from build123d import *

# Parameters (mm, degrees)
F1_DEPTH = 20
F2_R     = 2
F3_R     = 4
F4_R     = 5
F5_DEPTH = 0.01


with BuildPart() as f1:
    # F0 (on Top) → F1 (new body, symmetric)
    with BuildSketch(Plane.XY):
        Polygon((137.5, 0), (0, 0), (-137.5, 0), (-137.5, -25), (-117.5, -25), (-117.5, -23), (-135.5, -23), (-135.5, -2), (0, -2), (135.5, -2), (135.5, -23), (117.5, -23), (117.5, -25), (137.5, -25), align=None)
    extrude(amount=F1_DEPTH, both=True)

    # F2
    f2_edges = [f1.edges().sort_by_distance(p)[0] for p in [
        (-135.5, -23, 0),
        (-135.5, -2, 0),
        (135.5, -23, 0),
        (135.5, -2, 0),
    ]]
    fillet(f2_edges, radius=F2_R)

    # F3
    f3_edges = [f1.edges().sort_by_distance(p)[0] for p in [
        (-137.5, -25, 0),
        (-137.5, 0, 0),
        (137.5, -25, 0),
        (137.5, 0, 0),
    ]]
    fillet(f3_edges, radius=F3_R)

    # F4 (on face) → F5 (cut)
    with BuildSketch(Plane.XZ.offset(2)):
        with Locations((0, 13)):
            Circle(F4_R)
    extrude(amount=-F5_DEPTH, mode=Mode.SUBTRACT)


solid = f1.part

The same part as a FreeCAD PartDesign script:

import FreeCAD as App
import Part
import Sketcher
from FreeCAD import Vector


def edges_at(feature, points):
    """Names of the edges that pass closest to the given points."""
    edges = feature.Shape.Edges
    near = lambda p: min(range(len(edges)), key=lambda i: edges[i].distToShape(Part.Vertex(*p))[0])
    return sorted({f"Edge{near(p) + 1}" for p in points})

doc = App.newDocument("Part")
body = doc.addObject("PartDesign::Body", "Body")

sketch1 = body.newObject("Sketcher::SketchObject", "Sketch")
sketch1.AttachmentSupport = (doc.getObject("XY_Plane"), [""])
sketch1.MapMode = "FlatFace"
sketch1.addGeometry(Part.LineSegment(Vector(137.5, 0, 0), Vector(-137.5, 0, 0)), False)
sketch1.addGeometry(Part.LineSegment(Vector(-137.5, 0, 0), Vector(-137.5, -25, 0)), False)
sketch1.addGeometry(Part.LineSegment(Vector(-137.5, -25, 0), Vector(-117.5, -25, 0)), False)
sketch1.addGeometry(Part.LineSegment(Vector(-117.5, -25, 0), Vector(-117.5, -23, 0)), False)
sketch1.addGeometry(Part.LineSegment(Vector(-117.5, -23, 0), Vector(-135.5, -23, 0)), False)
sketch1.addGeometry(Part.LineSegment(Vector(-135.5, -23, 0), Vector(-135.5, -2, 0)), False)
sketch1.addGeometry(Part.LineSegment(Vector(-135.5, -2, 0), Vector(135.5, -2, 0)), False)
sketch1.addGeometry(Part.LineSegment(Vector(135.5, -2, 0), Vector(135.5, -23, 0)), False)
sketch1.addGeometry(Part.LineSegment(Vector(135.5, -23, 0), Vector(117.5, -23, 0)), False)
sketch1.addGeometry(Part.LineSegment(Vector(117.5, -23, 0), Vector(117.5, -25, 0)), False)
sketch1.addGeometry(Part.LineSegment(Vector(117.5, -25, 0), Vector(137.5, -25, 0)), False)
sketch1.addGeometry(Part.LineSegment(Vector(137.5, -25, 0), Vector(137.5, 0, 0)), False)
sketch1.addConstraint(Sketcher.Constraint("Coincident", 0, 2, 1, 1))
sketch1.addConstraint(Sketcher.Constraint("Coincident", 1, 2, 2, 1))
sketch1.addConstraint(Sketcher.Constraint("Coincident", 2, 2, 3, 1))
sketch1.addConstraint(Sketcher.Constraint("Coincident", 3, 2, 4, 1))
sketch1.addConstraint(Sketcher.Constraint("Coincident", 4, 2, 5, 1))
sketch1.addConstraint(Sketcher.Constraint("Coincident", 5, 2, 6, 1))
sketch1.addConstraint(Sketcher.Constraint("Coincident", 6, 2, 7, 1))
sketch1.addConstraint(Sketcher.Constraint("Coincident", 7, 2, 8, 1))
sketch1.addConstraint(Sketcher.Constraint("Coincident", 8, 2, 9, 1))
sketch1.addConstraint(Sketcher.Constraint("Coincident", 9, 2, 10, 1))
sketch1.addConstraint(Sketcher.Constraint("Coincident", 10, 2, 11, 1))
sketch1.addConstraint(Sketcher.Constraint("Coincident", 11, 2, 0, 1))
sketch1.addConstraint(Sketcher.Constraint("Horizontal", 0))
sketch1.addConstraint(Sketcher.Constraint("Vertical", 1))
sketch1.addConstraint(Sketcher.Constraint("Horizontal", 2))
sketch1.addConstraint(Sketcher.Constraint("Vertical", 3))
sketch1.addConstraint(Sketcher.Constraint("Horizontal", 4))
sketch1.addConstraint(Sketcher.Constraint("Vertical", 5))
sketch1.addConstraint(Sketcher.Constraint("Horizontal", 6))
sketch1.addConstraint(Sketcher.Constraint("Vertical", 7))
sketch1.addConstraint(Sketcher.Constraint("Horizontal", 8))
sketch1.addConstraint(Sketcher.Constraint("Vertical", 9))
sketch1.addConstraint(Sketcher.Constraint("Horizontal", 10))
sketch1.addConstraint(Sketcher.Constraint("Vertical", 11))
sketch1.addConstraint(Sketcher.Constraint("Symmetric", 0, 2, 11, 2, -1, 1))
sketch1.addConstraint(Sketcher.Constraint("Symmetric", 4, 2, 7, 2, -2))
sketch1.addConstraint(Sketcher.Constraint("Symmetric", 2, 2, 9, 2, -2))
sketch1.addConstraint(Sketcher.Constraint("DistanceX", 0, 2, 0, 1, 275.0))
sketch1.addConstraint(Sketcher.Constraint("DistanceX", 2, 1, 2, 2, 20.0))
sketch1.addConstraint(Sketcher.Constraint("DistanceX", 4, 2, 4, 1, 18.0))
sketch1.addConstraint(Sketcher.Constraint("DistanceY", 1, 2, 1, 1, 25.0))
sketch1.addConstraint(Sketcher.Constraint("DistanceY", 3, 1, 3, 2, 2.0))
sketch1.addConstraint(Sketcher.Constraint("DistanceY", 5, 1, 5, 2, 21.0))
pad1 = body.newObject("PartDesign::Pad", "Pad")
pad1.Profile = sketch1
pad1.Length = 40
pad1.Midplane = True
doc.recompute()

fillet = body.newObject("PartDesign::Fillet", "Fillet")
fillet.Base = (pad1, edges_at(pad1, [
    (-135.5, -23, 0),
    (-135.5, -2, 0),
    (135.5, -23, 0),
    (135.5, -2, 0),
]))
fillet.Radius = 2
doc.recompute()

fillet2 = body.newObject("PartDesign::Fillet", "Fillet001")
fillet2.Base = (fillet, edges_at(fillet, [
    (-137.5, -25, 0),
    (-137.5, 0, 0),
    (137.5, -25, 0),
    (137.5, 0, 0),
]))
fillet2.Radius = 4

sketch2 = body.newObject("Sketcher::SketchObject", "Sketch001")
sketch2.AttachmentSupport = (doc.getObject("XZ_Plane"), [""])
sketch2.MapMode = "FlatFace"
sketch2.AttachmentOffset = App.Placement(Vector(0, 0, 2), App.Rotation())
sketch2.addGeometry(Part.Circle(Vector(0, 13, 0), Vector(0, 0, 1), 5), False)
sketch2.addConstraint(Sketcher.Constraint("PointOnObject", 0, 3, -2))
sketch2.addConstraint(Sketcher.Constraint("Diameter", 0, 10.0))
sketch2.addConstraint(Sketcher.Constraint("DistanceY", -1, 1, 0, 3, 13.0))
pocket1 = body.newObject("PartDesign::Pocket", "Pocket")
pocket1.Profile = sketch2
pocket1.Length = 0.01

doc.recompute()
